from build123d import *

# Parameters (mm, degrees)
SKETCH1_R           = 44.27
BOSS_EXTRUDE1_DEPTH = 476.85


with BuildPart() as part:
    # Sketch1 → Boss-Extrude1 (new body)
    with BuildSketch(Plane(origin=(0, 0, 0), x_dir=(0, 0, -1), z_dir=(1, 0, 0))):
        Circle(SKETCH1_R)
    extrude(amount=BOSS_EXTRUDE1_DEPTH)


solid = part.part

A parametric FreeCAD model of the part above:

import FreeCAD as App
import Part
import Sketcher

V = App.Vector
Q = App.Units.Quantity

doc = App.newDocument("Part")
params = doc.addObject("Spreadsheet::Sheet", "Params")
for row, (alias, value) in enumerate([
    ("sketch1_diameter", "88.54 mm"),
    ("pad1_length", "476.85 mm"),
], start=1):
    params.set(f"A{row}", alias)
    params.set(f"B{row}", "=" + value)
    params.setAlias(f"B{row}", alias)

body = doc.addObject("PartDesign::Body", "Body")

# Sketch on YZ plane
sketch1 = doc.addObject("Sketcher::SketchObject", "Sketch")
body.addObject(sketch1)
sketch1.AttachmentSupport = (doc.YZ_Plane, [""])
sketch1.MapMode = "FlatFace"
sketch1.addGeometry(Part.Circle(V(0, 0, 0), V(0, 0, 1), 44), False)
sketch1.addConstraint([
    Sketcher.Constraint("Coincident", 0, 3, -1, 1),
    Sketcher.Constraint("Diameter", 0, Q("88.54 mm")),
])
sketch1.setExpression("Constraints[1]", "Params.sketch1_diameter")
pad1 = doc.addObject("PartDesign::Pad", "Pad")
body.addObject(pad1)
pad1.Profile = sketch1
pad1.setExpression("Length", "Params.pad1_length")

doc.recompute()
